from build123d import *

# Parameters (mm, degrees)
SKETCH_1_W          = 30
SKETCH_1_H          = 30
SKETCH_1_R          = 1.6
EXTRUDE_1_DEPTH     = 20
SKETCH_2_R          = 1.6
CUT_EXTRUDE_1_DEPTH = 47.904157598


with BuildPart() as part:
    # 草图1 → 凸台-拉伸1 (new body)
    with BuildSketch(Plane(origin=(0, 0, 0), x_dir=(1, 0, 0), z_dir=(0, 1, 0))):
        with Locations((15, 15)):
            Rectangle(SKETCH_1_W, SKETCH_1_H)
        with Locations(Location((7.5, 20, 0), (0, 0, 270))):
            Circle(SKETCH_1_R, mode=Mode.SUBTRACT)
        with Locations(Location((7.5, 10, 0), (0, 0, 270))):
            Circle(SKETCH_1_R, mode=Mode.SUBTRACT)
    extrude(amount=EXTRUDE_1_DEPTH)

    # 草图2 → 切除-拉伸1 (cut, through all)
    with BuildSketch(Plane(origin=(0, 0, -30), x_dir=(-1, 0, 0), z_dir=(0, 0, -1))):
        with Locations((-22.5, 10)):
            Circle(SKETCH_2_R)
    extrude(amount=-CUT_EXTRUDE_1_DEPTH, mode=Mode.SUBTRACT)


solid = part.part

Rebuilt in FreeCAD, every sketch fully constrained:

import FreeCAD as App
import Part
import Sketcher

V = App.Vector
Q = App.Units.Quantity


def add_polygon(sketch, points):
    """Adds a closed chain of lines whose ends are joined by coincident constraints."""
    first, n = sketch.GeometryCount, len(points)
    for a, b in zip(points, points[1:] + points[:1]):
        sketch.addGeometry(Part.LineSegment(App.Vector(*a, 0), App.Vector(*b, 0)), False)
    for i in range(n):
        sketch.addConstraint(Sketcher.Constraint("Coincident", first + i, 2, first + (i + 1) % n, 1))

doc = App.newDocument("Part")
body = doc.addObject("PartDesign::Body", "Body")

# Sketch on XZ plane
sketch1 = doc.addObject("Sketcher::SketchObject", "Sketch")
body.addObject(sketch1)
sketch1.AttachmentSupport = (doc.XZ_Plane, [""])
sketch1.MapMode = "FlatFace"
add_polygon(sketch1, [(0, -30), (0, 0), (30, 0), (30, -30)])  # lines 0-3
sketch1.addGeometry(Part.Circle(V(7.5, -10, 0), V(0, 0, 1), 1.6), False)  # 4
sketch1.addGeometry(Part.Circle(V(7.5, -20, 0), V(0, 0, 1), 1.6), False)  # 5
sketch1.addConstraint([
    Sketcher.Constraint("Vertical", 0),
    Sketcher.Constraint("Horizontal", 1),
    Sketcher.Constraint("Vertical", 2),
    Sketcher.Constraint("Horizontal", 3),
    Sketcher.Constraint("Coincident", 0, 2, -1, 1),
    Sketcher.Constraint("Equal", 4, 5),
    Sketcher.Constraint("Vertical", 4, 3, 5, 3),
    Sketcher.Constraint("Equal", 3, 0),
    Sketcher.Constraint("Diameter", 4, Q("3.2 mm")),
    Sketcher.Constraint("DistanceX", 1, 1, 1, 2, Q("30 mm")),
    Sketcher.Constraint("DistanceY", 4, 3, -1, 1, Q("10 mm")),
    Sketcher.Constraint("DistanceY", 5, 3, -1, 1, Q("20 mm")),
    Sketcher.Constraint("DistanceX", -1, 1, 4, 3, Q("7.5 mm")),
])
pad1 = doc.addObject("PartDesign::Pad", "Pad")
body.addObject(pad1)
pad1.Profile = sketch1
pad1.Length = 20
pad1.Reversed = True

# Sketch on XY plane
sketch2 = doc.addObject("Sketcher::SketchObject", "Sketch001")
body.addObject(sketch2)
sketch2.AttachmentSupport = (doc.XY_Plane, [""])
sketch2.MapMode = "FlatFace"
sketch2.AttachmentOffset = App.Placement(V(0, 0, -30), App.Rotation())
sketch2.addGeometry(Part.Circle(V(22.5, 10, 0), V(0, 0, 1), 1.6), False)
sketch2.addConstraint([
    Sketcher.Constraint("Diameter", 0, Q("3.2 mm")),
    Sketcher.Constraint("DistanceY", -1, 1, 0, 3, Q("10 mm")),
    Sketcher.Constraint("DistanceX", -1, 1, 0, 3, Q("22.5 mm")),
])
pocket1 = doc.addObject("PartDesign::Pocket", "Pocket")
body.addObject(pocket1)
pocket1.Profile = sketch2
pocket1.Type = "ThroughAll"
pocket1.Reversed = True

doc.recompute()
